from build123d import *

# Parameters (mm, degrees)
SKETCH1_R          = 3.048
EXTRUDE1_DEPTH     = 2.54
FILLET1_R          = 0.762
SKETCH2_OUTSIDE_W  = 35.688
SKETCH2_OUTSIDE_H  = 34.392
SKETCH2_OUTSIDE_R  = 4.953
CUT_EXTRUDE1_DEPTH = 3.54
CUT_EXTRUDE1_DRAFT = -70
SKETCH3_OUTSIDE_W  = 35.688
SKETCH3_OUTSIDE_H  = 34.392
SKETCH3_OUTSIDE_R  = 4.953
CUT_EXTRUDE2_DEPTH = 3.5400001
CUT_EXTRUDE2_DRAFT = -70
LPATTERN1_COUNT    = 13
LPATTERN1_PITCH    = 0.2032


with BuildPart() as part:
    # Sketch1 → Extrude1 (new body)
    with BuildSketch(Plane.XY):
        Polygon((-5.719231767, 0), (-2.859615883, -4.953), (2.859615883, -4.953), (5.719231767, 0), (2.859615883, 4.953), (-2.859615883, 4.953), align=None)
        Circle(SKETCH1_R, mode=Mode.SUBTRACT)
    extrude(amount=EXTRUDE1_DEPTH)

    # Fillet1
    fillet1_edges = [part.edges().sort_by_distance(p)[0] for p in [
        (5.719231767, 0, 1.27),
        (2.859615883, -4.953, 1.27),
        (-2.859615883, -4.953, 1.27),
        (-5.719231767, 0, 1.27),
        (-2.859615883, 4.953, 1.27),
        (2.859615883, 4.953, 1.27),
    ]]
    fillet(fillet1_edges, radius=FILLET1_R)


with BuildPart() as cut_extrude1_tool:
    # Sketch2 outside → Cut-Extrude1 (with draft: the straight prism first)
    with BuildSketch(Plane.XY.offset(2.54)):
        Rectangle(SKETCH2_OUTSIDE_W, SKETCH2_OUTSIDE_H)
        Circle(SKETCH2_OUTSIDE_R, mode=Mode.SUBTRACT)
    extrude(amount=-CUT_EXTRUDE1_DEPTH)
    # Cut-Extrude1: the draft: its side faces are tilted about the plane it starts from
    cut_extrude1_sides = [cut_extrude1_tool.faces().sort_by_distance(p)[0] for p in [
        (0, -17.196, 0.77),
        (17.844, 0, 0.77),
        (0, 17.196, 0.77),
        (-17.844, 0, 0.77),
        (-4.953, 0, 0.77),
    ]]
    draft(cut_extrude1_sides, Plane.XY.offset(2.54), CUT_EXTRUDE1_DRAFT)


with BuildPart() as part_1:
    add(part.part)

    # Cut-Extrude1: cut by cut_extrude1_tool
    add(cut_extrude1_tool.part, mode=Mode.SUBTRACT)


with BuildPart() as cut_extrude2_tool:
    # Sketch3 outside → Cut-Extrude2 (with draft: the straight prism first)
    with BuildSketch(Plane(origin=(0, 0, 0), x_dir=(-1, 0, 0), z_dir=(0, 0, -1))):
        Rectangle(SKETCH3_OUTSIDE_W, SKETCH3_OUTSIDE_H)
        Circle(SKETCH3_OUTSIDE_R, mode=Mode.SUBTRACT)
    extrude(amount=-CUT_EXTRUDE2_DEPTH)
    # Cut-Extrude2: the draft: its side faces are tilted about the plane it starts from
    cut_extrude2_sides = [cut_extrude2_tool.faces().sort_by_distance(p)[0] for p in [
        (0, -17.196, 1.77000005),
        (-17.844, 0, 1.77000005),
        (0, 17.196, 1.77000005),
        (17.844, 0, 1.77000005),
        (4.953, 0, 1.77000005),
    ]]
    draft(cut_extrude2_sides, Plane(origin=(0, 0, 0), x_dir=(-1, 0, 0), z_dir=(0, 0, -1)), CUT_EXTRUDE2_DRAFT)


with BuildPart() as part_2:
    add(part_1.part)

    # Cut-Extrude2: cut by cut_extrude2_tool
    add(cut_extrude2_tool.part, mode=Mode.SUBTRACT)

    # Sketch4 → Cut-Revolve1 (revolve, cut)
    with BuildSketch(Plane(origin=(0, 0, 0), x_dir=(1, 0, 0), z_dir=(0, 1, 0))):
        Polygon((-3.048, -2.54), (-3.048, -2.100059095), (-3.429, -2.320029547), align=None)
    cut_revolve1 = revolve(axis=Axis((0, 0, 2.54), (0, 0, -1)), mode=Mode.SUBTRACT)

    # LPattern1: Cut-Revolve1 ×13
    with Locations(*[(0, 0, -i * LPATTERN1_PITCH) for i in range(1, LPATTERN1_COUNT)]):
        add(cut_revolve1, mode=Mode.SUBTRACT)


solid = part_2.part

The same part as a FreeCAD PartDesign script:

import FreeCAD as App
import Part
import Sketcher

V = App.Vector
Q = App.Units.Quantity


def edges_at(feature, points):
    """Names of the edges that pass closest to the given points."""
    edges = feature.Shape.Edges
    near = lambda p: min(range(len(edges)), key=lambda i: edges[i].distToShape(Part.Vertex(*p))[0])
    return sorted({f"Edge{near(p) + 1}" for p in points})


def faces_at(feature, points):
    """Names of the faces that lie closest to the given points."""
    faces = feature.Shape.Faces
    near = lambda p: min(range(len(faces)), key=lambda i: faces[i].distToShape(Part.Vertex(*p))[0])
    return sorted({f"Face{near(p) + 1}" for p in points})


def add_polygon(sketch, points):
    """Adds a closed chain of lines whose ends are joined by coincident constraints."""
    first, n = sketch.GeometryCount, len(points)
    for a, b in zip(points, points[1:] + points[:1]):
        sketch.addGeometry(Part.LineSegment(App.Vector(*a, 0), App.Vector(*b, 0)), False)
    for i in range(n):
        sketch.addConstraint(Sketcher.Constraint("Coincident", first + i, 2, first + (i + 1) % n, 1))

doc = App.newDocument("Part")
params = doc.addObject("Spreadsheet::Sheet", "Params")
for row, (alias, value) in enumerate([
    ("sketch1_diameter", "0.24 in"),
    ("pad1_length", "0.1 in"),
    ("fillet_radius", "0.03 in"),
    ("sketch2_diameter", "0.39 in"),
    ("pad2_length", "3.54 mm"),
    ("draft_angle", "70 deg"),
    ("sketch3_diameter", "0.39 in"),
    ("pad3_length", "3.54 mm"),
    ("draft2_angle", "70 deg"),
    ("groove_angle", "360 deg"),
    ("linearpattern_pitch", "0.008 in"),
], start=1):
    params.set(f"A{row}", alias)
    params.set(f"B{row}", "=" + value)
    params.setAlias(f"B{row}", alias)

body = doc.addObject("PartDesign::Body", "Body")

# Sketch on XY plane
sketch1 = doc.addObject("Sketcher::SketchObject", "Sketch")
body.addObject(sketch1)
sketch1.AttachmentSupport = (doc.XY_Plane, [""])
sketch1.MapMode = "FlatFace"
add_polygon(sketch1, [(-5.719232, 0), (-2.859616, -4.953), (2.859616, -4.953), (5.719232, 0), (2.859616, 4.953), (-2.859616, 4.953)])  # lines 0-5
sketch1.addGeometry(Part.Circle(V(0, 0, 0), V(0, 0, 1), 3.048), False)  # 6
sketch1.addConstraint(Sketcher.Constraint("Horizontal", 1))
sketch1.addConstraint(Sketcher.Constraint("Horizontal", 4))
sketch1.addConstraint(Sketcher.Constraint("Coincident", 6, 3, -1, 1))
sketch1.addConstraint(Sketcher.Constraint("Symmetric", 0, 2, 3, 2, -1, 1))
sketch1.addConstraint(Sketcher.Constraint("Symmetric", 2, 2, 5, 2, -1, 1))
sketch1.addConstraint(Sketcher.Constraint("PointOnObject", 2, 2, -1))
sketch1.addConstraint(Sketcher.Constraint("Parallel", 2, 5))
sketch1.addConstraint(Sketcher.Constraint("Vertical", 1, 2, 3, 2))
sketch1.addConstraint(Sketcher.Constraint("Diameter", 6, Q("0.24 in")))
sketch1.addConstraint(Sketcher.Constraint("Angle", 0, Q("-60 deg")))
sketch1.addConstraint(Sketcher.Constraint("DistanceY", 1, 2, 3, 2, Q("0.39 in")))
sketch1.addConstraint(Sketcher.Constraint("DistanceX", 1, 1, 1, 2, 5.719232))
sketch1.setExpression("Constraints[14]", "Params.sketch1_diameter")
pad1 = doc.addObject("PartDesign::Pad", "Pad")
body.addObject(pad1)
pad1.Profile = sketch1
pad1.setExpression("Length", "Params.pad1_length")
doc.recompute()

fillet = doc.addObject("PartDesign::Fillet", "Fillet")
body.addObject(fillet)
fillet.Base = (pad1, edges_at(pad1, [
    (5.719, 0, 1.27),
    (2.86, -4.953, 1.27),
    (-2.86, -4.953, 1.27),
    (-5.719, 0, 1.27),
    (-2.86, 4.953, 1.27),
    (2.86, 4.953, 1.27),
]))
fillet.setExpression("Radius", "Params.fillet_radius")
body2 = doc.addObject("PartDesign::Body", "Body001")

# Sketch on XY plane
sketch2 = doc.addObject("Sketcher::SketchObject", "Sketch001")
body2.addObject(sketch2)
sketch2.AttachmentSupport = (doc.getObject("XY_Plane001"), [""])
sketch2.MapMode = "FlatFace"
sketch2.AttachmentOffset = App.Placement(V(0, 0, 0.1 * 25.4), App.Rotation())
add_polygon(sketch2, [(-17.844, 17.196), (-17.844, -17.196), (17.844, -17.196), (17.844, 17.196)])  # lines 0-3
sketch2.addGeometry(Part.Circle(V(0, 0, 0), V(0, 0, 1), 4.953), False)  # 4
sketch2.addConstraint(Sketcher.Constraint("Vertical", 0))
sketch2.addConstraint(Sketcher.Constraint("Horizontal", 1))
sketch2.addConstraint(Sketcher.Constraint("Vertical", 2))
sketch2.addConstraint(Sketcher.Constraint("Horizontal", 3))
sketch2.addConstraint(Sketcher.Constraint("Coincident", 4, 3, -1, 1))
sketch2.addConstraint(Sketcher.Constraint("Symmetric", 0, 2, 2, 2, -1, 1))
sketch2.addConstraint(Sketcher.Constraint("Diameter", 4, Q("0.39 in")))
sketch2.addConstraint(Sketcher.Constraint("DistanceX", 1, 1, 1, 2, 35.688))
sketch2.addConstraint(Sketcher.Constraint("DistanceY", 0, 2, 0, 1, 34.392))
sketch2.setExpression("Constraints[10]", "Params.sketch2_diameter")
pad2 = doc.addObject("PartDesign::Pad", "Pad001")
body2.addObject(pad2)
pad2.Profile = sketch2
pad2.setExpression("Length", "Params.pad2_length")
pad2.Reversed = True
doc.recompute()

datumplane = doc.addObject("PartDesign::Plane", "DatumPlane")
body2.addObject(datumplane)
datumplane.AttachmentSupport = (doc.getObject("XY_Plane001"), [""])
datumplane.MapMode = "FlatFace"
datumplane.AttachmentOffset = App.Placement(V(0, 0, 0.1 * 25.4), App.Rotation())
draft = doc.addObject("PartDesign::Draft", "Draft")
body2.addObject(draft)
draft.Base = (pad2, faces_at(pad2, [
    (0, -17.196, 0.77),
    (17.844, 0, 0.77),
    (0, 17.196, 0.77),
    (-17.844, 0, 0.77),
    (-4.953, 0, 0.77),
]))
draft.NeutralPlane = (datumplane, [""])
draft.setExpression("Angle", "Params.draft_angle")
draft.Reversed = True
doc.recompute()

boolean = doc.addObject("PartDesign::Boolean", "Boolean")
body.addObject(boolean)
boolean.Type = "Cut"
boolean.addObjects([body2])
body3 = doc.addObject("PartDesign::Body", "Body002")

# Sketch on XY plane
sketch3 = doc.addObject("Sketcher::SketchObject", "Sketch002")
body3.addObject(sketch3)
sketch3.AttachmentSupport = (doc.getObject("XY_Plane002"), [""])
sketch3.MapMode = "FlatFace"
add_polygon(sketch3, [(17.844, 17.196), (17.844, -17.196), (-17.844, -17.196), (-17.844, 17.196)])  # lines 0-3
sketch3.addGeometry(Part.Circle(V(0, 0, 0), V(0, 0, 1), 4.953), False)  # 4
sketch3.addConstraint(Sketcher.Constraint("Vertical", 0))
sketch3.addConstraint(Sketcher.Constraint("Horizontal", 1))
sketch3.addConstraint(Sketcher.Constraint("Vertical", 2))
sketch3.addConstraint(Sketcher.Constraint("Horizontal", 3))
sketch3.addConstraint(Sketcher.Constraint("Coincident", 4, 3, -1, 1))
sketch3.addConstraint(Sketcher.Constraint("Symmetric", 0, 2, 2, 2, -1, 1))
sketch3.addConstraint(Sketcher.Constraint("Diameter", 4, Q("0.39 in")))
sketch3.addConstraint(Sketcher.Constraint("DistanceX", 1, 2, 1, 1, 35.688))
sketch3.addConstraint(Sketcher.Constraint("DistanceY", 0, 2, 0, 1, 34.392))
sketch3.setExpression("Constraints[10]", "Params.sketch3_diameter")
pad3 = doc.addObject("PartDesign::Pad", "Pad002")
body3.addObject(pad3)
pad3.Profile = sketch3
pad3.setExpression("Length", "Params.pad3_length")
doc.recompute()

draft2 = doc.addObject("PartDesign::Draft", "Draft001")
body3.addObject(draft2)
draft2.Base = (pad3, faces_at(pad3, [
    (0, -17.196, 1.77),
    (-17.844, 0, 1.77),
    (0, 17.196, 1.77),
    (17.844, 0, 1.77),
    (4.953, 0, 1.77),
]))
draft2.NeutralPlane = (doc.getObject("XY_Plane002"), [""])
draft2.setExpression("Angle", "Params.draft2_angle")
draft2.Reversed = False
doc.recompute()

boolean2 = doc.addObject("PartDesign::Boolean", "Boolean001")
body.addObject(boolean2)
boolean2.Type = "Cut"
boolean2.addObjects([body3])

# Sketch on XZ plane
sketch4 = doc.addObject("Sketcher::SketchObject", "Sketch003")
body.addObject(sketch4)
sketch4.AttachmentSupport = (doc.XZ_Plane, [""])
sketch4.MapMode = "FlatFace"
add_polygon(sketch4, [(-3.048, 2.54), (-3.048, 2.100059), (-3.429, 2.32003)])  # lines 0-2
sketch4.addConstraint(Sketcher.Constraint("Vertical", 0))
sketch4.addConstraint(Sketcher.Constraint("Equal", 1, 2))
sketch4.addConstraint(Sketcher.Constraint("Angle", 1, Q("150 deg")))
sketch4.addConstraint(Sketcher.Constraint("DistanceY", -1, 1, 2, 2, Q("0.1 in")))
sketch4.addConstraint(Sketcher.Constraint("DistanceX", 0, 2, -1, 1, Q("0.12 in")))
sketch4.addConstraint(Sketcher.Constraint("DistanceX", 1, 2, -1, 1, Q("0.135 in")))
groove = doc.addObject("PartDesign::Groove", "Groove")
body.addObject(groove)
groove.Profile = sketch4
groove.ReferenceAxis = (sketch4, ["V_Axis"])
groove.setExpression("Angle", "Params.groove_angle")
doc.recompute()

linearpattern = doc.addObject("PartDesign::LinearPattern", "LinearPattern")
body.addObject(linearpattern)
linearpattern.Originals = [groove]
linearpattern.Direction = (doc.Z_Axis, [""])
linearpattern.Mode = "offset"
linearpattern.setExpression("Offset", "Params.linearpattern_pitch")
linearpattern.Occurrences = 13
linearpattern.Reversed = True
body.Tip = linearpattern

doc.recompute()
